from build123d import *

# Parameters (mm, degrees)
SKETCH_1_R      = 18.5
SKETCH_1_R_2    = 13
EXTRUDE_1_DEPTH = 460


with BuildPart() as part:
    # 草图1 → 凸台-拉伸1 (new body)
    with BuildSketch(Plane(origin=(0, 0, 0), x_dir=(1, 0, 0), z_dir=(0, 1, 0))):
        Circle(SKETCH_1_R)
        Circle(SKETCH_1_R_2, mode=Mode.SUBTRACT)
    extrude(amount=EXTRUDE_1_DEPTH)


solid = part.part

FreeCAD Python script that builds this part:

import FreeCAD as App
import Part
import Sketcher

V = App.Vector
Q = App.Units.Quantity

doc = App.newDocument("Part")
params = doc.addObject("Spreadsheet::Sheet", "Params")
for row, (alias, value) in enumerate([
    ("sketch1_diameter", "37 mm"),
    ("sketch1_diameter2", "26 mm"),
    ("pad1_length", "460 mm"),
], start=1):
    params.set(f"A{row}", alias)
    params.set(f"B{row}", "=" + value)
    params.setAlias(f"B{row}", alias)

body = doc.addObject("PartDesign::Body", "Body")

# Sketch on XZ plane
sketch1 = doc.addObject("Sketcher::SketchObject", "Sketch")
body.addObject(sketch1)
sketch1.AttachmentSupport = (doc.XZ_Plane, [""])
sketch1.MapMode = "FlatFace"
sketch1.addGeometry(Part.Circle(V(0, 0, 0), V(0, 0, 1), 18), False)
sketch1.addGeometry(Part.Circle(V(0, 0, 0), V(0, 0, 1), 13), False)
sketch1.addConstraint(Sketcher.Constraint("Coincident", 0, 3, -1, 1))
sketch1.addConstraint(Sketcher.Constraint("Coincident", 1, 3, -1, 1))
sketch1.addConstraint(Sketcher.Constraint("Diameter", 0, Q("37 mm")))
sketch1.addConstraint(Sketcher.Constraint("Diameter", 1, Q("26 mm")))
sketch1.setExpression("Constraints[2]", "Params.sketch1_diameter")
sketch1.setExpression("Constraints[3]", "Params.sketch1_diameter2")
pad1 = doc.addObject("PartDesign::Pad", "Pad")
body.addObject(pad1)
pad1.Profile = sketch1
pad1.setExpression("Length", "Params.pad1_length")
pad1.Reversed = True

doc.recompute()
